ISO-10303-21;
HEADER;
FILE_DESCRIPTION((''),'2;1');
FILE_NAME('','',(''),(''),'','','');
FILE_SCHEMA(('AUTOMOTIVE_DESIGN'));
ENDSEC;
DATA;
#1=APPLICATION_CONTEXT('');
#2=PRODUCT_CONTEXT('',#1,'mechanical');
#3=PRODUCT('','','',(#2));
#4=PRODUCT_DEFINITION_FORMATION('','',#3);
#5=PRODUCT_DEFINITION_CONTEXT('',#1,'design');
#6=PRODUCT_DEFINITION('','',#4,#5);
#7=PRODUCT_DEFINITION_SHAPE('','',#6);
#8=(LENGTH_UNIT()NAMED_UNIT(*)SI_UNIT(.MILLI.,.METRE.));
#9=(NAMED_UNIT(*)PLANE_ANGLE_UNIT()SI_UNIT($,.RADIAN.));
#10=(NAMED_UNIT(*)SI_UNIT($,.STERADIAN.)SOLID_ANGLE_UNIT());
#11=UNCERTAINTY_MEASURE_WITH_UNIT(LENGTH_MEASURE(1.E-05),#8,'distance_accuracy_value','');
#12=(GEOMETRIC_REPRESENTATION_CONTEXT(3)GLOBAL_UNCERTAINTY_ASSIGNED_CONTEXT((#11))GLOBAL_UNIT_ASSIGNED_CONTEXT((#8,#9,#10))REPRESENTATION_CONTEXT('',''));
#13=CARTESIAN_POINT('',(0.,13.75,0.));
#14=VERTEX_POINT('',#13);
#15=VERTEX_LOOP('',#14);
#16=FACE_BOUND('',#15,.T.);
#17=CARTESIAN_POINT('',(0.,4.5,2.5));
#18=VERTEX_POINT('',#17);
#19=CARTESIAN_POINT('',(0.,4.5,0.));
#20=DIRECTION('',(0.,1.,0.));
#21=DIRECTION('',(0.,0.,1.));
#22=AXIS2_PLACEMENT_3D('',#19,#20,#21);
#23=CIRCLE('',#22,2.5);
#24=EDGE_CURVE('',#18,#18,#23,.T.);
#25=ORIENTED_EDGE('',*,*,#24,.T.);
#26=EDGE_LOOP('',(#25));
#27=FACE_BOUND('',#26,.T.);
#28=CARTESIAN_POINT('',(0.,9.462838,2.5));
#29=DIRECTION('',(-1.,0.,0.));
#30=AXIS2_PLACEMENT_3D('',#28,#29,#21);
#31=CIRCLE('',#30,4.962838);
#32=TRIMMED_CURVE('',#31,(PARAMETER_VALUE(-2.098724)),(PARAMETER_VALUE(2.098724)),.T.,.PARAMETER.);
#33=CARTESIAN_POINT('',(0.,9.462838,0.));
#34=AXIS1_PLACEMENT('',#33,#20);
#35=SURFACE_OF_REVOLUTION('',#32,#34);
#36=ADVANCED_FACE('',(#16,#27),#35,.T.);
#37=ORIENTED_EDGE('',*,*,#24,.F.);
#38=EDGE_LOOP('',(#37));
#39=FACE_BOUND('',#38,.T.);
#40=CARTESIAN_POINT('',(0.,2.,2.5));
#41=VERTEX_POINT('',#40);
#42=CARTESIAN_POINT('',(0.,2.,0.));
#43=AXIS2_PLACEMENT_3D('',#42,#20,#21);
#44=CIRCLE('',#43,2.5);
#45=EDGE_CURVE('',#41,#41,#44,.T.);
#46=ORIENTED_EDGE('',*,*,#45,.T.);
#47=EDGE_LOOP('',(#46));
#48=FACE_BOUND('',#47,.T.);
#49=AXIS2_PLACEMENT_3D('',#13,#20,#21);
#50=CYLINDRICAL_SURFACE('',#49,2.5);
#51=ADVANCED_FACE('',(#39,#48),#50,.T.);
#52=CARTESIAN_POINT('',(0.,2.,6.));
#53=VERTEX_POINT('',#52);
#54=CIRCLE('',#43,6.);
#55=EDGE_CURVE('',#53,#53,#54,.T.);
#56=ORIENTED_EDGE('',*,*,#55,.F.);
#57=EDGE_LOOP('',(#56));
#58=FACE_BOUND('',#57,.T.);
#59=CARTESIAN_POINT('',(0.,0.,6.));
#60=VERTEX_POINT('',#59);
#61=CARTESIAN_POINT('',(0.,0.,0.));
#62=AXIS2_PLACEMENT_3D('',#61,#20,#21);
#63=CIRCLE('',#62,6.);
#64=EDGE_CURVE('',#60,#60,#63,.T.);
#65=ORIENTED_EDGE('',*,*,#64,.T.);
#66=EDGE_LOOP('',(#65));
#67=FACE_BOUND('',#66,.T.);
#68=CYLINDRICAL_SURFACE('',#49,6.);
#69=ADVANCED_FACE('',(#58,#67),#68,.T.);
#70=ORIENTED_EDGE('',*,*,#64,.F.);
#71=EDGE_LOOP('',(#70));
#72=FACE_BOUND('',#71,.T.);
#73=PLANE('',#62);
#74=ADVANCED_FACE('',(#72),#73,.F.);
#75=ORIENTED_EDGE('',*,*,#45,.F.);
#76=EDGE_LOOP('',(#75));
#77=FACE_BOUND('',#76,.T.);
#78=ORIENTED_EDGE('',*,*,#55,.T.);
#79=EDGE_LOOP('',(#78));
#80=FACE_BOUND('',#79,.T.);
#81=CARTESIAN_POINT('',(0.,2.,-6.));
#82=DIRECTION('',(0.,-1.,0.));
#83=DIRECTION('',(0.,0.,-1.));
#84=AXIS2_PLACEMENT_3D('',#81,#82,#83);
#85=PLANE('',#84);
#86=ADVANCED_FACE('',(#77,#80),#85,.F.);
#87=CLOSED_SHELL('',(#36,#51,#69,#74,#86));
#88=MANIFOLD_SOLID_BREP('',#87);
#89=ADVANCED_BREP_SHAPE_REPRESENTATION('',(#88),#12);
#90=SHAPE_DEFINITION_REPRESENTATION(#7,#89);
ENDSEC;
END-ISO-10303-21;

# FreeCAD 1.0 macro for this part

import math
import FreeCAD as App
import Part
import Sketcher

V = App.Vector
Q = App.Units.Quantity

doc = App.newDocument("Part")
body = doc.addObject("PartDesign::Body", "Body")

sketch1 = body.newObject("Sketcher::SketchObject", "Sketch")
sketch1.AttachmentSupport = (doc.getObject("YZ_Plane"), [""])
sketch1.MapMode = "FlatFace"
sketch1.addGeometry([
    Part.LineSegment(V(0, 0, 0), V(0, -6, 0)),
    Part.LineSegment(V(0, -6, 0), V(2, -6, 0)),
    Part.LineSegment(V(2, -6, 0), V(2, -2.5, 0)),
    Part.LineSegment(V(2, -2.5, 0), V(4.5, -2.5, 0)),
    Part.ArcOfCircle(Part.Circle(V(9.5, -2.5, 0), V(0, 0, 1), 5), math.radians(180), math.radians(390)),
    Part.LineSegment(V(13.8, 0, 0), V(0, 0, 0)),
], False)
sketch1.addConstraint([
    Sketcher.Constraint("Coincident", 0, 2, 1, 1),
    Sketcher.Constraint("Coincident", 1, 2, 2, 1),
    Sketcher.Constraint("Coincident", 2, 2, 3, 1),
    Sketcher.Constraint("Coincident", 3, 2, 4, 1),
    Sketcher.Constraint("Coincident", 4, 2, 5, 1),
    Sketcher.Constraint("Coincident", 5, 2, 0, 1),
    Sketcher.Constraint("Vertical", 0),
    Sketcher.Constraint("Horizontal", 1),
    Sketcher.Constraint("Vertical", 2),
    Sketcher.Constraint("Horizontal", 3),
    Sketcher.Constraint("Horizontal", 5),
    Sketcher.Constraint("Coincident", 5, 2, -1, 1),
    Sketcher.Constraint("Horizontal", 4, 3, 2, 2),
    Sketcher.Constraint("DistanceX", 1, 1, 1, 2, Q("2 mm")),
    Sketcher.Constraint("DistanceY", 0, 2, 0, 1, Q("6 mm")),
    Sketcher.Constraint("DistanceX", 3, 1, 3, 2, Q("2.5 mm")),
    Sketcher.Constraint("DistanceY", 2, 1, 2, 2, Q("3.5 mm")),
    Sketcher.Constraint("DistanceX", 5, 2, 5, 1, Q("13.75 mm")),
])
revolution = body.newObject("PartDesign::Revolution", "Revolution")
revolution.Profile = sketch1
revolution.ReferenceAxis = (sketch1, ["H_Axis"])
revolution.Angle = 360

doc.recompute()
